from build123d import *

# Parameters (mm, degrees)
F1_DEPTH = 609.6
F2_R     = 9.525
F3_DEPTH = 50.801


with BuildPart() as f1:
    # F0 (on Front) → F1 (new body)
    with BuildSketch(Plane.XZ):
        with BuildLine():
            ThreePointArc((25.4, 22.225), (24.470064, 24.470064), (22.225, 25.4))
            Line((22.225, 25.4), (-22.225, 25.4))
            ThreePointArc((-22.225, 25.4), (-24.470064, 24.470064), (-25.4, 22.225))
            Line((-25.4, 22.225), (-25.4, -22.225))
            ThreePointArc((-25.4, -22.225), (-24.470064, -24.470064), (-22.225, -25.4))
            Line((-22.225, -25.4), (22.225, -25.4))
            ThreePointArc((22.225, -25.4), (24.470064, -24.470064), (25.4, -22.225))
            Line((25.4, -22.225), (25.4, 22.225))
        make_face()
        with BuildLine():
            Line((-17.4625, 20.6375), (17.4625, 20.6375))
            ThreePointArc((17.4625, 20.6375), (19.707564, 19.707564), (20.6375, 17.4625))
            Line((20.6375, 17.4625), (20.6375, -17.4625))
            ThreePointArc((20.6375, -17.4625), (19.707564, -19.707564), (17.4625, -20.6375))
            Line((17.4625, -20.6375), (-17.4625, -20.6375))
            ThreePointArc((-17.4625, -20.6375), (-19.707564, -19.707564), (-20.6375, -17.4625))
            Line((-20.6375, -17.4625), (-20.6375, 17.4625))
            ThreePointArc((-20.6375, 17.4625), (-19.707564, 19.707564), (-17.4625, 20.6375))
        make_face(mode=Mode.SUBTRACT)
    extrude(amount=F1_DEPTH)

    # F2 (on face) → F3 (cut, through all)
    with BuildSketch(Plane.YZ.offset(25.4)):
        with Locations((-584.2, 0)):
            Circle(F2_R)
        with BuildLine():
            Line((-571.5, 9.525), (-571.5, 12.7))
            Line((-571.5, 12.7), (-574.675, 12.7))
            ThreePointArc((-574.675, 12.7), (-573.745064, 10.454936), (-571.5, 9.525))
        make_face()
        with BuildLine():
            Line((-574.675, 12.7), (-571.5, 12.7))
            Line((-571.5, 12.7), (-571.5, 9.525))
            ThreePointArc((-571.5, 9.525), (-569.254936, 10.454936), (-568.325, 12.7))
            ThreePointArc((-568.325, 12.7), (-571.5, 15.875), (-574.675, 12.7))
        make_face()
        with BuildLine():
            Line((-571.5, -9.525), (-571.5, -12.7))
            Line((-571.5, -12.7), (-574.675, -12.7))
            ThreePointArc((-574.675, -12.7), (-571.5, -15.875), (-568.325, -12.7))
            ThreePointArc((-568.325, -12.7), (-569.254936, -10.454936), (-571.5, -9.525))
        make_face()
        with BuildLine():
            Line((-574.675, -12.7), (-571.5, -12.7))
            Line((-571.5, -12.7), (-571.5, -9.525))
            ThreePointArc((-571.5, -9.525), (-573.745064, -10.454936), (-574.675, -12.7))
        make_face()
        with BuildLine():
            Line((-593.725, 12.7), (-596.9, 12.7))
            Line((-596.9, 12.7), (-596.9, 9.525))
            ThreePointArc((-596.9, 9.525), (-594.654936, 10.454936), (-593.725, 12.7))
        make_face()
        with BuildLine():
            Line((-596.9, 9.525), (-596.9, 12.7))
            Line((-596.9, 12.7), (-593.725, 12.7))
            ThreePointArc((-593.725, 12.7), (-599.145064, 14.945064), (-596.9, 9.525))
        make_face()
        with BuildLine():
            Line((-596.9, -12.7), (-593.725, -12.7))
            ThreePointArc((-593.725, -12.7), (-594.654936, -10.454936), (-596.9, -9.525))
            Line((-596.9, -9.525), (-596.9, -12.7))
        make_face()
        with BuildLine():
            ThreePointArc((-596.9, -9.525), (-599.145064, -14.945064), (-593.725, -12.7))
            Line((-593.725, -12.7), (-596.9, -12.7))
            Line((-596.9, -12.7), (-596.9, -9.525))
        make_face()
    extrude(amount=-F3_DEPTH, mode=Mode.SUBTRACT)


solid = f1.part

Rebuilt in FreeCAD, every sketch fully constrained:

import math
import FreeCAD as App
import Part
import Sketcher

V = App.Vector
Q = App.Units.Quantity

doc = App.newDocument("Part")
body = doc.addObject("PartDesign::Body", "Body")

# Sketch on XZ plane
sketch1 = body.newObject("Sketcher::SketchObject", "Sketch")
sketch1.AttachmentSupport = (doc.getObject("XZ_Plane"), [""])
sketch1.MapMode = "FlatFace"
sketch1.addGeometry([
    Part.ArcOfCircle(Part.Circle(V(22.2, 22.2, 0), V(0, 0, 1), 3.2), math.radians(0), math.radians(90)),  # 0
    Part.LineSegment(V(22.2, 25.4, 0), V(-22.2, 25.4, 0)),  # 1
    Part.ArcOfCircle(Part.Circle(V(-22.2, 22.2, 0), V(0, 0, 1), 3.2), math.radians(90), math.radians(180)),  # 2
    Part.LineSegment(V(-25.4, 22.2, 0), V(-25.4, -22.2, 0)),  # 3
    Part.ArcOfCircle(Part.Circle(V(-22.2, -22.2, 0), V(0, 0, 1), 3.2), math.radians(-180), math.radians(-90)),  # 4
    Part.LineSegment(V(-22.2, -25.4, 0), V(22.2, -25.4, 0)),  # 5
    Part.ArcOfCircle(Part.Circle(V(22.2, -22.2, 0), V(0, 0, 1), 3.2), math.radians(-90), math.radians(0)),  # 6
    Part.LineSegment(V(25.4, -22.2, 0), V(25.4, 22.2, 0)),  # 7
    Part.ArcOfCircle(Part.Circle(V(-17.5, 17.5, 0), V(0, 0, 1), 3.2), math.radians(90), math.radians(180)),  # 8
    Part.LineSegment(V(-17.5, 20.6, 0), V(17.5, 20.6, 0)),  # 9
    Part.ArcOfCircle(Part.Circle(V(17.5, 17.5, 0), V(0, 0, 1), 3.2), math.radians(0), math.radians(90)),  # 10
    Part.LineSegment(V(20.6, 17.5, 0), V(20.6, -17.5, 0)),  # 11
    Part.ArcOfCircle(Part.Circle(V(17.5, -17.5, 0), V(0, 0, 1), 3.2), math.radians(-90), math.radians(0)),  # 12
    Part.LineSegment(V(17.5, -20.6, 0), V(-17.5, -20.6, 0)),  # 13
    Part.ArcOfCircle(Part.Circle(V(-17.5, -17.5, 0), V(0, 0, 1), 3.2), math.radians(-180), math.radians(-90)),  # 14
    Part.LineSegment(V(-20.6, -17.5, 0), V(-20.6, 17.5, 0)),  # 15
], False)
sketch1.addConstraint([
    Sketcher.Constraint("Tangent", 0, 2, 1, 1),
    Sketcher.Constraint("Tangent", 1, 2, 2, 1),
    Sketcher.Constraint("Tangent", 2, 2, 3, 1),
    Sketcher.Constraint("Tangent", 3, 2, 4, 1),
    Sketcher.Constraint("Tangent", 4, 2, 5, 1),
    Sketcher.Constraint("Tangent", 5, 2, 6, 1),
    Sketcher.Constraint("Tangent", 6, 2, 7, 1),
    Sketcher.Constraint("Tangent", 7, 2, 0, 1),
    Sketcher.Constraint("Tangent", 8, 1, 9, 1),
    Sketcher.Constraint("Tangent", 9, 2, 10, 2),
    Sketcher.Constraint("Tangent", 10, 1, 11, 1),
    Sketcher.Constraint("Tangent", 11, 2, 12, 2),
    Sketcher.Constraint("Tangent", 12, 1, 13, 1),
    Sketcher.Constraint("Tangent", 13, 2, 14, 2),
    Sketcher.Constraint("Tangent", 14, 1, 15, 1),
    Sketcher.Constraint("Tangent", 15, 2, 8, 2),
    Sketcher.Constraint("Horizontal", 1),
    Sketcher.Constraint("Vertical", 3),
    Sketcher.Constraint("Horizontal", 5),
    Sketcher.Constraint("Vertical", 7),
    Sketcher.Constraint("Horizontal", 9),
    Sketcher.Constraint("Vertical", 11),
    Sketcher.Constraint("Horizontal", 13),
    Sketcher.Constraint("Vertical", 15),
    Sketcher.Constraint("Equal", 0, 2),
    Sketcher.Constraint("Equal", 2, 4),
    Sketcher.Constraint("Equal", 4, 6),
    Sketcher.Constraint("Equal", 6, 8),
    Sketcher.Constraint("Equal", 8, 10),
    Sketcher.Constraint("Equal", 10, 12),
    Sketcher.Constraint("Equal", 12, 14),
    Sketcher.Constraint("Symmetric", 0, 3, 4, 3, -1, 1),
    Sketcher.Constraint("Symmetric", 8, 3, 12, 3, -1, 1),
    Sketcher.Constraint("Equal", 5, 3),
    Sketcher.Constraint("Equal", 13, 11),
    Sketcher.Constraint("DistanceY", -1, 1, 0, 2, Q("1 in")),
    Sketcher.Constraint("Radius", 0, Q("0.125 in")),
    Sketcher.Constraint("DistanceX", 9, 1, 9, 2, Q("1.375 in")),
])
pad1 = body.newObject("PartDesign::Pad", "Pad")
pad1.Profile = sketch1
pad1.Length = Q("24 in")

# Sketch on YZ plane
sketch2 = body.newObject("Sketcher::SketchObject", "Sketch001")
sketch2.AttachmentSupport = (doc.getObject("YZ_Plane"), [""])
sketch2.MapMode = "FlatFace"
sketch2.AttachmentOffset = App.Placement(V(0, 0, 1 * 25.4), App.Rotation())
sketch2.addGeometry([
    Part.Circle(V(-584.2, 0, 0), V(0, 0, 1), 9.5),  # 0
    Part.ArcOfCircle(Part.Circle(V(-571.5, 12.7, 0), V(0, 0, 1), 3.2), math.radians(-180), math.radians(-90)),  # 1
    Part.ArcOfCircle(Part.Circle(V(-571.5, 12.7, 0), V(0, 0, 1), 3.2), math.radians(-90), math.radians(0)),  # 2
    Part.ArcOfCircle(Part.Circle(V(-571.5, 12.7, 0), V(0, 0, 1), 3.2), math.radians(0), math.radians(180)),  # 3
    Part.ArcOfCircle(Part.Circle(V(-571.5, -12.7, 0), V(0, 0, 1), 3.2), math.radians(180), math.radians(360)),  # 4
    Part.ArcOfCircle(Part.Circle(V(-571.5, -12.7, 0), V(0, 0, 1), 3.2), math.radians(0), math.radians(90)),  # 5
    Part.ArcOfCircle(Part.Circle(V(-571.5, -12.7, 0), V(0, 0, 1), 3.2), math.radians(90), math.radians(180)),  # 6
    Part.ArcOfCircle(Part.Circle(V(-596.9, 12.7, 0), V(0, 0, 1), 3.2), math.radians(-90), math.radians(0)),  # 7
    Part.ArcOfCircle(Part.Circle(V(-596.9, 12.7, 0), V(0, 0, 1), 3.2), math.radians(0), math.radians(270)),  # 8
    Part.ArcOfCircle(Part.Circle(V(-596.9, -12.7, 0), V(0, 0, 1), 3.2), math.radians(0), math.radians(90)),  # 9
    Part.ArcOfCircle(Part.Circle(V(-596.9, -12.7, 0), V(0, 0, 1), 3.2), math.radians(90), math.radians(360)),  # 10
], False)
sketch2.addConstraint([
    Sketcher.Constraint("Tangent", 1, 2, 2, 1),
    Sketcher.Constraint("Tangent", 2, 2, 3, 1),
    Sketcher.Constraint("Tangent", 3, 2, 1, 1),
    Sketcher.Constraint("Tangent", 4, 2, 5, 1),
    Sketcher.Constraint("Tangent", 5, 2, 6, 1),
    Sketcher.Constraint("Tangent", 6, 2, 4, 1),
    Sketcher.Constraint("Tangent", 7, 1, 8, 2),
    Sketcher.Constraint("Coincident", 8, 1, 7, 2),
    Sketcher.Constraint("Tangent", 9, 1, 10, 2),
    Sketcher.Constraint("Coincident", 10, 1, 9, 2),
    Sketcher.Constraint("Equal", 3, 4),
    Sketcher.Constraint("Equal", 6, 7),
    Sketcher.Constraint("Equal", 8, 9),
    Sketcher.Constraint("Symmetric", 1, 3, 4, 3, -1),
    Sketcher.Constraint("Symmetric", 7, 3, 9, 3, -1),
    Sketcher.Constraint("PointOnObject", 0, 3, -1),
    Sketcher.Constraint("Horizontal", 3, 3, 7, 3),
    Sketcher.Constraint("Horizontal", 8, 3, 2, 2),
    Sketcher.Constraint("Horizontal", 2, 2, 3, 2),
    Sketcher.Constraint("Horizontal", 10, 3, 4, 2),
    Sketcher.Constraint("Horizontal", 4, 2, 6, 2),
    Sketcher.Constraint("Horizontal", 3, 2, 8, 1),
    Sketcher.Constraint("Horizontal", 6, 2, 9, 1),
    Sketcher.Constraint("Vertical", 6, 3, 1, 2),
    Sketcher.Constraint("Vertical", 1, 2, 5, 2),
    Sketcher.Constraint("Vertical", 10, 3, 7, 1),
    Sketcher.Constraint("Vertical", 7, 1, 10, 1),
    Sketcher.Constraint("Diameter", 0, Q("0.75 in")),
    Sketcher.Constraint("DistanceX", 0, 3, -1, 1, Q("23 in")),
    Sketcher.Constraint("Radius", 1, Q("0.125 in")),
    Sketcher.Constraint("DistanceY", 4, 3, 3, 3, Q("1 in")),
    Sketcher.Constraint("DistanceX", 7, 3, 2, 3, Q("1 in")),
    Sketcher.Constraint("DistanceX", 1, 3, -1, 1, Q("22.5 in")),
])
pocket1 = body.newObject("PartDesign::Pocket", "Pocket")
pocket1.Profile = sketch2
pocket1.Type = "ThroughAll"

doc.recompute()
